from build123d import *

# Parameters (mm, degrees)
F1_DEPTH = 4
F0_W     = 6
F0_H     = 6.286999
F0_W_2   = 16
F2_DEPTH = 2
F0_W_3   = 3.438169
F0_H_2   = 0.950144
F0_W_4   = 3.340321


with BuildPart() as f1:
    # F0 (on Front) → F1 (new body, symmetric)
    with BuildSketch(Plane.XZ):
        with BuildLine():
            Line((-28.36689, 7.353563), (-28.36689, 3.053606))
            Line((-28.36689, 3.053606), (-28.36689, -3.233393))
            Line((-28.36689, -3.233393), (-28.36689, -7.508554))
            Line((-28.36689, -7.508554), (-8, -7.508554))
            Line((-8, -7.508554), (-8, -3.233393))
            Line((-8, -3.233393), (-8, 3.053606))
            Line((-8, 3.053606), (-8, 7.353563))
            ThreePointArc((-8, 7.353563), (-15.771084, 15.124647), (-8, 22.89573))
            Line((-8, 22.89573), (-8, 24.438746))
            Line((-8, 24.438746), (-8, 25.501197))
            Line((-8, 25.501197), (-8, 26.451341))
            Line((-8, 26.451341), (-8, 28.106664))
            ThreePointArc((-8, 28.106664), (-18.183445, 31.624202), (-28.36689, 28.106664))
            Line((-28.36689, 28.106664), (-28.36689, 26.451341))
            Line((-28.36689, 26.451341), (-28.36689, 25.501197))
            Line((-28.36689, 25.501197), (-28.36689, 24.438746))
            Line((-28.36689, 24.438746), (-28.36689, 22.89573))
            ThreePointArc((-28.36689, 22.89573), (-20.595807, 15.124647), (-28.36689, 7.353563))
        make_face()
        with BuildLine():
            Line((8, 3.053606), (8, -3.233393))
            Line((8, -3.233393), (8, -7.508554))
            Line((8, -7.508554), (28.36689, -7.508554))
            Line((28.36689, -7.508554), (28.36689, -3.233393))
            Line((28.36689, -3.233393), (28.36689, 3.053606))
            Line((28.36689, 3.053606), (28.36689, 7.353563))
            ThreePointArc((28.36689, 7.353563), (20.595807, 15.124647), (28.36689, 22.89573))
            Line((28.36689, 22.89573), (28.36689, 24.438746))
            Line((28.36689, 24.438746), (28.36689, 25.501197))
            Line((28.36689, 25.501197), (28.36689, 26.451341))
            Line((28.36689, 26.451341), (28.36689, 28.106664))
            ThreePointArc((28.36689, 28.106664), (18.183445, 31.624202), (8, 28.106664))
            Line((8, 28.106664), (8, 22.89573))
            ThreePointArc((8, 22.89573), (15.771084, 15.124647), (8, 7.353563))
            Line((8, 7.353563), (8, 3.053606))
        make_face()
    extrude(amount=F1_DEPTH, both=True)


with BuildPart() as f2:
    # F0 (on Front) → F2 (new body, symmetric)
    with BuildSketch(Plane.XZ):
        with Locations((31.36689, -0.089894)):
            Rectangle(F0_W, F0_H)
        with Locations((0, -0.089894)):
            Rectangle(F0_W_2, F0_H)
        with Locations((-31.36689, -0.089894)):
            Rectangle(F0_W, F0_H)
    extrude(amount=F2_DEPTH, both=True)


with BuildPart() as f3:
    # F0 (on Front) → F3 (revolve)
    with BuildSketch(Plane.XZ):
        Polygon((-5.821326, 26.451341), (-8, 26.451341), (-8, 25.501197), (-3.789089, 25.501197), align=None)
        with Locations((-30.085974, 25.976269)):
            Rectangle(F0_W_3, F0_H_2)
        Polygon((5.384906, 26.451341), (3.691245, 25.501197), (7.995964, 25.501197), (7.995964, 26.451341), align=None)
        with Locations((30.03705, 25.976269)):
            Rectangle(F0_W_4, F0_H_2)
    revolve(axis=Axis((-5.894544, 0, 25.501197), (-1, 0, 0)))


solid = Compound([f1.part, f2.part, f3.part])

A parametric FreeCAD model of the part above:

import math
import FreeCAD as App
import Part
import Sketcher

V = App.Vector
Q = App.Units.Quantity

doc = App.newDocument("Part")
body = doc.addObject("PartDesign::Body", "Body")
body.AllowCompound = True

sketch1 = doc.addObject("Sketcher::SketchObject", "Sketch")
body.addObject(sketch1)
sketch1.AttachmentSupport = (doc.XZ_Plane, [""])
sketch1.MapMode = "FlatFace"
sketch1.addGeometry([
    Part.LineSegment(V(-28, 7, 0), V(-28, -8, 0)),
    Part.LineSegment(V(-28, -8, 0), V(-8, -8, 0)),
    Part.LineSegment(V(-8, -8, 0), V(-8, 7, 0)),
    Part.ArcOfCircle(Part.Circle(V(-8, 15, 0), V(0, 0, 1), 8), math.radians(90), math.radians(270)),
    Part.LineSegment(V(-8, 23, 0), V(-8, 28, 0)),
    Part.ArcOfCircle(Part.Circle(V(-18, 15, 0), V(0, 0, 1), 16), math.radians(52), math.radians(128)),
    Part.LineSegment(V(-28, 28, 0), V(-28, 23, 0)),
    Part.ArcOfCircle(Part.Circle(V(-28, 15, 0), V(0, 0, 1), 8), math.radians(-90), math.radians(90)),
    Part.LineSegment(V(8, -8, 0), V(28, -8, 0)),
    Part.LineSegment(V(28, -8, 0), V(28, 7, 0)),
    Part.ArcOfCircle(Part.Circle(V(28, 15, 0), V(0, 0, 1), 8), math.radians(90), math.radians(270)),
    Part.LineSegment(V(28, 23, 0), V(28, 28, 0)),
    Part.ArcOfCircle(Part.Circle(V(18, 15, 0), V(0, 0, 1), 16), math.radians(52), math.radians(128)),
    Part.LineSegment(V(8, 28, 0), V(8, 23, 0)),
    Part.ArcOfCircle(Part.Circle(V(8, 15, 0), V(0, 0, 1), 8), math.radians(-90), math.radians(90)),
    Part.LineSegment(V(8, 7, 0), V(8, -8, 0)),
], False)
sketch1.addConstraint([
    Sketcher.Constraint("Coincident", 0, 2, 1, 1),
    Sketcher.Constraint("Coincident", 1, 2, 2, 1),
    Sketcher.Constraint("Coincident", 2, 2, 3, 2),
    Sketcher.Constraint("Coincident", 3, 1, 4, 1),
    Sketcher.Constraint("Coincident", 4, 2, 5, 1),
    Sketcher.Constraint("Coincident", 5, 2, 6, 1),
    Sketcher.Constraint("Coincident", 6, 2, 7, 2),
    Sketcher.Constraint("Coincident", 7, 1, 0, 1),
    Sketcher.Constraint("Coincident", 8, 2, 9, 1),
    Sketcher.Constraint("Coincident", 9, 2, 10, 2),
    Sketcher.Constraint("Coincident", 10, 1, 11, 1),
    Sketcher.Constraint("Coincident", 11, 2, 12, 1),
    Sketcher.Constraint("Coincident", 12, 2, 13, 1),
    Sketcher.Constraint("Coincident", 13, 2, 14, 2),
    Sketcher.Constraint("Coincident", 14, 1, 15, 1),
    Sketcher.Constraint("Coincident", 15, 2, 8, 1),
    Sketcher.Constraint("Vertical", 0),
    Sketcher.Constraint("Horizontal", 1),
    Sketcher.Constraint("Vertical", 2),
    Sketcher.Constraint("Vertical", 4),
    Sketcher.Constraint("Vertical", 6),
    Sketcher.Constraint("Horizontal", 8),
    Sketcher.Constraint("Vertical", 9),
    Sketcher.Constraint("Vertical", 11),
    Sketcher.Constraint("Vertical", 13),
    Sketcher.Constraint("Vertical", 15),
    Sketcher.Constraint("Equal", 3, 7),
    Sketcher.Constraint("Equal", 7, 10),
    Sketcher.Constraint("Equal", 5, 12),
    Sketcher.Constraint("Equal", 10, 14),
    Sketcher.Constraint("Symmetric", 7, 3, 10, 3, -2),
    Sketcher.Constraint("Symmetric", 5, 3, 12, 3, -2),
    Sketcher.Constraint("Symmetric", 3, 3, 14, 3, -2),
    Sketcher.Constraint("Symmetric", 0, 2, 8, 2, -2),
    Sketcher.Constraint("Horizontal", 3, 3, 5, 3),
    Sketcher.Constraint("Horizontal", 5, 3, 7, 3),
    Sketcher.Constraint("Horizontal", 4, 2, 5, 2),
    Sketcher.Constraint("Horizontal", 5, 2, 11, 2),
    Sketcher.Constraint("Horizontal", 11, 2, 12, 2),
    Sketcher.Constraint("Vertical", 7, 3, 0, 2),
    Sketcher.Constraint("Vertical", 3, 3, 1, 2),
    Sketcher.Constraint("Vertical", 2, 2, 3, 1),
    Sketcher.Constraint("Vertical", 0, 2, 5, 2),
    Sketcher.Constraint("Vertical", 13, 2, 14, 1),
    Sketcher.Constraint("DistanceX", 3, 3, -1, 1, Q("8.000001 mm")),
    Sketcher.Constraint("Radius", 3, Q("7.771083 mm")),
    Sketcher.Constraint("Radius", 5, Q("16.499555 mm")),
    Sketcher.Constraint("DistanceX", 1, 1, 1, 2, Q("20.36689 mm")),
    Sketcher.Constraint("DistanceY", 0, 2, 7, 3, Q("22.633201 mm")),
    Sketcher.Constraint("DistanceY", -1, 1, 3, 1, Q("22.89573 mm")),
])
pad1 = doc.addObject("PartDesign::Pad", "Pad")
body.addObject(pad1)
pad1.Profile = sketch1
pad1.Length = 8
pad1.Midplane = True
body2 = doc.addObject("PartDesign::Body", "Body001")
body2.AllowCompound = True

sketch2 = doc.addObject("Sketcher::SketchObject", "Sketch001")
body2.addObject(sketch2)
sketch2.AttachmentSupport = (doc.getObject("XZ_Plane001"), [""])
sketch2.MapMode = "FlatFace"
sketch2.addGeometry([
    Part.LineSegment(V(28, 3, 0), V(28, -3, 0)),
    Part.LineSegment(V(28, -3, 0), V(34, -3, 0)),
    Part.LineSegment(V(34, -3, 0), V(34, 3, 0)),
    Part.LineSegment(V(34, 3, 0), V(28, 3, 0)),
    Part.LineSegment(V(-8, 3, 0), V(-8, -3, 0)),
    Part.LineSegment(V(-8, -3, 0), V(8, -3, 0)),
    Part.LineSegment(V(8, -3, 0), V(8, 3, 0)),
    Part.LineSegment(V(8, 3, 0), V(-8, 3, 0)),
    Part.LineSegment(V(-34, 3, 0), V(-34, -3, 0)),
    Part.LineSegment(V(-34, -3, 0), V(-28, -3, 0)),
    Part.LineSegment(V(-28, -3, 0), V(-28, 3, 0)),
    Part.LineSegment(V(-28, 3, 0), V(-34, 3, 0)),
], False)
sketch2.addConstraint([
    Sketcher.Constraint("Coincident", 0, 2, 1, 1),
    Sketcher.Constraint("Coincident", 1, 2, 2, 1),
    Sketcher.Constraint("Coincident", 2, 2, 3, 1),
    Sketcher.Constraint("Coincident", 3, 2, 0, 1),
    Sketcher.Constraint("Coincident", 4, 2, 5, 1),
    Sketcher.Constraint("Coincident", 5, 2, 6, 1),
    Sketcher.Constraint("Coincident", 6, 2, 7, 1),
    Sketcher.Constraint("Coincident", 7, 2, 4, 1),
    Sketcher.Constraint("Coincident", 8, 2, 9, 1),
    Sketcher.Constraint("Coincident", 9, 2, 10, 1),
    Sketcher.Constraint("Coincident", 10, 2, 11, 1),
    Sketcher.Constraint("Coincident", 11, 2, 8, 1),
    Sketcher.Constraint("Vertical", 0),
    Sketcher.Constraint("Horizontal", 1),
    Sketcher.Constraint("Vertical", 2),
    Sketcher.Constraint("Horizontal", 3),
    Sketcher.Constraint("Vertical", 4),
    Sketcher.Constraint("Horizontal", 5),
    Sketcher.Constraint("Vertical", 6),
    Sketcher.Constraint("Horizontal", 7),
    Sketcher.Constraint("Vertical", 8),
    Sketcher.Constraint("Horizontal", 9),
    Sketcher.Constraint("Vertical", 10),
    Sketcher.Constraint("Horizontal", 11),
    Sketcher.Constraint("Symmetric", 1, 2, 8, 2, -2),
    Sketcher.Constraint("Symmetric", 3, 2, 10, 2, -2),
    Sketcher.Constraint("Horizontal", 1, 2, 4, 2),
    Sketcher.Constraint("Horizontal", 3, 2, 6, 2),
    Sketcher.Constraint("DistanceX", 1, 1, 1, 2, Q("6 mm")),
    Sketcher.Constraint("DistanceX", 5, 1, 5, 2, Q("16 mm")),
    Sketcher.Constraint("DistanceX", 4, 2, -1, 1, Q("8 mm")),
    Sketcher.Constraint("DistanceY", 0, 2, 0, 1, Q("6.286999 mm")),
    Sketcher.Constraint("DistanceX", -1, 1, 0, 2, Q("28.36689 mm")),
    Sketcher.Constraint("DistanceY", 0, 2, -1, 1, Q("3.233394 mm")),
])
pad2 = doc.addObject("PartDesign::Pad", "Pad001")
body2.addObject(pad2)
pad2.Profile = sketch2
pad2.Length = 4
pad2.Midplane = True
body3 = doc.addObject("PartDesign::Body", "Body002")
body3.AllowCompound = True

sketch3 = doc.addObject("Sketcher::SketchObject", "Sketch002")
body3.addObject(sketch3)
sketch3.AttachmentSupport = (doc.getObject("XZ_Plane002"), [""])
sketch3.MapMode = "FlatFace"
sketch3.addGeometry([
    Part.LineSegment(V(-5.8, 26.5, 0), V(-8, 26.5, 0)),
    Part.LineSegment(V(-8, 26.5, 0), V(-8, 25.5, 0)),
    Part.LineSegment(V(-8, 25.5, 0), V(-3.8, 25.5, 0)),
    Part.LineSegment(V(-3.8, 25.5, 0), V(-5.8, 26.5, 0)),
    Part.LineSegment(V(-31.8, 26.5, 0), V(-31.8, 25.5, 0)),
    Part.LineSegment(V(-31.8, 25.5, 0), V(-28.4, 25.5, 0)),
    Part.LineSegment(V(-28.4, 25.5, 0), V(-28.4, 26.5, 0)),
    Part.LineSegment(V(-28.4, 26.5, 0), V(-31.8, 26.5, 0)),
    Part.LineSegment(V(5.4, 26.5, 0), V(3.7, 25.5, 0)),
    Part.LineSegment(V(3.7, 25.5, 0), V(8, 25.5, 0)),
    Part.LineSegment(V(8, 25.5, 0), V(8, 26.5, 0)),
    Part.LineSegment(V(8, 26.5, 0), V(5.4, 26.5, 0)),
    Part.LineSegment(V(28.4, 26.5, 0), V(28.4, 25.5, 0)),
    Part.LineSegment(V(28.4, 25.5, 0), V(31.7, 25.5, 0)),
    Part.LineSegment(V(31.7, 25.5, 0), V(31.7, 26.5, 0)),
    Part.LineSegment(V(31.7, 26.5, 0), V(28.4, 26.5, 0)),
], False)
sketch3.addGeometry(Part.LineSegment(V(31.7, 25.5, 0), V(-31.8, 25.5, 0)), True)
sketch3.addConstraint([
    Sketcher.Constraint("Coincident", 0, 2, 1, 1),
    Sketcher.Constraint("Coincident", 1, 2, 2, 1),
    Sketcher.Constraint("Coincident", 2, 2, 3, 1),
    Sketcher.Constraint("Coincident", 3, 2, 0, 1),
    Sketcher.Constraint("Coincident", 4, 2, 5, 1),
    Sketcher.Constraint("Coincident", 5, 2, 6, 1),
    Sketcher.Constraint("Coincident", 6, 2, 7, 1),
    Sketcher.Constraint("Coincident", 7, 2, 4, 1),
    Sketcher.Constraint("Coincident", 8, 2, 9, 1),
    Sketcher.Constraint("Coincident", 9, 2, 10, 1),
    Sketcher.Constraint("Coincident", 10, 2, 11, 1),
    Sketcher.Constraint("Coincident", 11, 2, 8, 1),
    Sketcher.Constraint("Coincident", 12, 2, 13, 1),
    Sketcher.Constraint("Coincident", 13, 2, 14, 1),
    Sketcher.Constraint("Coincident", 14, 2, 15, 1),
    Sketcher.Constraint("Coincident", 15, 2, 12, 1),
    Sketcher.Constraint("Horizontal", 0),
    Sketcher.Constraint("Vertical", 1),
    Sketcher.Constraint("Horizontal", 2),
    Sketcher.Constraint("Vertical", 4),
    Sketcher.Constraint("Horizontal", 5),
    Sketcher.Constraint("Vertical", 6),
    Sketcher.Constraint("Horizontal", 7),
    Sketcher.Constraint("Horizontal", 9),
    Sketcher.Constraint("Vertical", 10),
    Sketcher.Constraint("Horizontal", 11),
    Sketcher.Constraint("Vertical", 12),
    Sketcher.Constraint("Horizontal", 13),
    Sketcher.Constraint("Vertical", 14),
    Sketcher.Constraint("Horizontal", 15),
    Sketcher.Constraint("Horizontal", 16),
    Sketcher.Constraint("Coincident", 16, 1, 13, 2),
    Sketcher.Constraint("Coincident", 16, 2, 4, 2),
    Sketcher.Constraint("Symmetric", 6, 2, 15, 2, -2),
    Sketcher.Constraint("Horizontal", 2, 2, 4, 2),
    Sketcher.Constraint("Horizontal", 3, 2, 6, 2),
    Sketcher.Constraint("Horizontal", 5, 2, 8, 2),
    Sketcher.Constraint("Horizontal", 7, 2, 10, 2),
    Sketcher.Constraint("DistanceX", 0, 2, -1, 1, Q("8 mm")),
    Sketcher.Constraint("DistanceX", 2, 1, 2, 2, Q("4.210911 mm")),
    Sketcher.Constraint("DistanceX", 5, 1, 5, 2, Q("3.438169 mm")),
    Sketcher.Constraint("DistanceX", 9, 1, 9, 2, Q("4.304719 mm")),
    Sketcher.Constraint("DistanceX", 13, 1, 13, 2, Q("3.340321 mm")),
    Sketcher.Constraint("DistanceX", 16, 2, 16, 1, Q("63.512269 mm")),
    Sketcher.Constraint("Distance", 3, Q("2.243382 mm")),
    Sketcher.Constraint("DistanceX", 0, 2, 0, 1, Q("2.178674 mm")),
    Sketcher.Constraint("DistanceX", 11, 2, 11, 1, Q("2.611058 mm")),
    Sketcher.Constraint("DistanceY", -1, 1, 0, 2, Q("26.451341 mm")),
    Sketcher.Constraint("DistanceX", 3, 2, 8, 2, Q("9.512571 mm")),
])
revolution = doc.addObject("PartDesign::Revolution", "Revolution")
body3.addObject(revolution)
revolution.Profile = sketch3
revolution.ReferenceAxis = (sketch3, ["Axis0"])
revolution.Angle = 360

doc.recompute()
